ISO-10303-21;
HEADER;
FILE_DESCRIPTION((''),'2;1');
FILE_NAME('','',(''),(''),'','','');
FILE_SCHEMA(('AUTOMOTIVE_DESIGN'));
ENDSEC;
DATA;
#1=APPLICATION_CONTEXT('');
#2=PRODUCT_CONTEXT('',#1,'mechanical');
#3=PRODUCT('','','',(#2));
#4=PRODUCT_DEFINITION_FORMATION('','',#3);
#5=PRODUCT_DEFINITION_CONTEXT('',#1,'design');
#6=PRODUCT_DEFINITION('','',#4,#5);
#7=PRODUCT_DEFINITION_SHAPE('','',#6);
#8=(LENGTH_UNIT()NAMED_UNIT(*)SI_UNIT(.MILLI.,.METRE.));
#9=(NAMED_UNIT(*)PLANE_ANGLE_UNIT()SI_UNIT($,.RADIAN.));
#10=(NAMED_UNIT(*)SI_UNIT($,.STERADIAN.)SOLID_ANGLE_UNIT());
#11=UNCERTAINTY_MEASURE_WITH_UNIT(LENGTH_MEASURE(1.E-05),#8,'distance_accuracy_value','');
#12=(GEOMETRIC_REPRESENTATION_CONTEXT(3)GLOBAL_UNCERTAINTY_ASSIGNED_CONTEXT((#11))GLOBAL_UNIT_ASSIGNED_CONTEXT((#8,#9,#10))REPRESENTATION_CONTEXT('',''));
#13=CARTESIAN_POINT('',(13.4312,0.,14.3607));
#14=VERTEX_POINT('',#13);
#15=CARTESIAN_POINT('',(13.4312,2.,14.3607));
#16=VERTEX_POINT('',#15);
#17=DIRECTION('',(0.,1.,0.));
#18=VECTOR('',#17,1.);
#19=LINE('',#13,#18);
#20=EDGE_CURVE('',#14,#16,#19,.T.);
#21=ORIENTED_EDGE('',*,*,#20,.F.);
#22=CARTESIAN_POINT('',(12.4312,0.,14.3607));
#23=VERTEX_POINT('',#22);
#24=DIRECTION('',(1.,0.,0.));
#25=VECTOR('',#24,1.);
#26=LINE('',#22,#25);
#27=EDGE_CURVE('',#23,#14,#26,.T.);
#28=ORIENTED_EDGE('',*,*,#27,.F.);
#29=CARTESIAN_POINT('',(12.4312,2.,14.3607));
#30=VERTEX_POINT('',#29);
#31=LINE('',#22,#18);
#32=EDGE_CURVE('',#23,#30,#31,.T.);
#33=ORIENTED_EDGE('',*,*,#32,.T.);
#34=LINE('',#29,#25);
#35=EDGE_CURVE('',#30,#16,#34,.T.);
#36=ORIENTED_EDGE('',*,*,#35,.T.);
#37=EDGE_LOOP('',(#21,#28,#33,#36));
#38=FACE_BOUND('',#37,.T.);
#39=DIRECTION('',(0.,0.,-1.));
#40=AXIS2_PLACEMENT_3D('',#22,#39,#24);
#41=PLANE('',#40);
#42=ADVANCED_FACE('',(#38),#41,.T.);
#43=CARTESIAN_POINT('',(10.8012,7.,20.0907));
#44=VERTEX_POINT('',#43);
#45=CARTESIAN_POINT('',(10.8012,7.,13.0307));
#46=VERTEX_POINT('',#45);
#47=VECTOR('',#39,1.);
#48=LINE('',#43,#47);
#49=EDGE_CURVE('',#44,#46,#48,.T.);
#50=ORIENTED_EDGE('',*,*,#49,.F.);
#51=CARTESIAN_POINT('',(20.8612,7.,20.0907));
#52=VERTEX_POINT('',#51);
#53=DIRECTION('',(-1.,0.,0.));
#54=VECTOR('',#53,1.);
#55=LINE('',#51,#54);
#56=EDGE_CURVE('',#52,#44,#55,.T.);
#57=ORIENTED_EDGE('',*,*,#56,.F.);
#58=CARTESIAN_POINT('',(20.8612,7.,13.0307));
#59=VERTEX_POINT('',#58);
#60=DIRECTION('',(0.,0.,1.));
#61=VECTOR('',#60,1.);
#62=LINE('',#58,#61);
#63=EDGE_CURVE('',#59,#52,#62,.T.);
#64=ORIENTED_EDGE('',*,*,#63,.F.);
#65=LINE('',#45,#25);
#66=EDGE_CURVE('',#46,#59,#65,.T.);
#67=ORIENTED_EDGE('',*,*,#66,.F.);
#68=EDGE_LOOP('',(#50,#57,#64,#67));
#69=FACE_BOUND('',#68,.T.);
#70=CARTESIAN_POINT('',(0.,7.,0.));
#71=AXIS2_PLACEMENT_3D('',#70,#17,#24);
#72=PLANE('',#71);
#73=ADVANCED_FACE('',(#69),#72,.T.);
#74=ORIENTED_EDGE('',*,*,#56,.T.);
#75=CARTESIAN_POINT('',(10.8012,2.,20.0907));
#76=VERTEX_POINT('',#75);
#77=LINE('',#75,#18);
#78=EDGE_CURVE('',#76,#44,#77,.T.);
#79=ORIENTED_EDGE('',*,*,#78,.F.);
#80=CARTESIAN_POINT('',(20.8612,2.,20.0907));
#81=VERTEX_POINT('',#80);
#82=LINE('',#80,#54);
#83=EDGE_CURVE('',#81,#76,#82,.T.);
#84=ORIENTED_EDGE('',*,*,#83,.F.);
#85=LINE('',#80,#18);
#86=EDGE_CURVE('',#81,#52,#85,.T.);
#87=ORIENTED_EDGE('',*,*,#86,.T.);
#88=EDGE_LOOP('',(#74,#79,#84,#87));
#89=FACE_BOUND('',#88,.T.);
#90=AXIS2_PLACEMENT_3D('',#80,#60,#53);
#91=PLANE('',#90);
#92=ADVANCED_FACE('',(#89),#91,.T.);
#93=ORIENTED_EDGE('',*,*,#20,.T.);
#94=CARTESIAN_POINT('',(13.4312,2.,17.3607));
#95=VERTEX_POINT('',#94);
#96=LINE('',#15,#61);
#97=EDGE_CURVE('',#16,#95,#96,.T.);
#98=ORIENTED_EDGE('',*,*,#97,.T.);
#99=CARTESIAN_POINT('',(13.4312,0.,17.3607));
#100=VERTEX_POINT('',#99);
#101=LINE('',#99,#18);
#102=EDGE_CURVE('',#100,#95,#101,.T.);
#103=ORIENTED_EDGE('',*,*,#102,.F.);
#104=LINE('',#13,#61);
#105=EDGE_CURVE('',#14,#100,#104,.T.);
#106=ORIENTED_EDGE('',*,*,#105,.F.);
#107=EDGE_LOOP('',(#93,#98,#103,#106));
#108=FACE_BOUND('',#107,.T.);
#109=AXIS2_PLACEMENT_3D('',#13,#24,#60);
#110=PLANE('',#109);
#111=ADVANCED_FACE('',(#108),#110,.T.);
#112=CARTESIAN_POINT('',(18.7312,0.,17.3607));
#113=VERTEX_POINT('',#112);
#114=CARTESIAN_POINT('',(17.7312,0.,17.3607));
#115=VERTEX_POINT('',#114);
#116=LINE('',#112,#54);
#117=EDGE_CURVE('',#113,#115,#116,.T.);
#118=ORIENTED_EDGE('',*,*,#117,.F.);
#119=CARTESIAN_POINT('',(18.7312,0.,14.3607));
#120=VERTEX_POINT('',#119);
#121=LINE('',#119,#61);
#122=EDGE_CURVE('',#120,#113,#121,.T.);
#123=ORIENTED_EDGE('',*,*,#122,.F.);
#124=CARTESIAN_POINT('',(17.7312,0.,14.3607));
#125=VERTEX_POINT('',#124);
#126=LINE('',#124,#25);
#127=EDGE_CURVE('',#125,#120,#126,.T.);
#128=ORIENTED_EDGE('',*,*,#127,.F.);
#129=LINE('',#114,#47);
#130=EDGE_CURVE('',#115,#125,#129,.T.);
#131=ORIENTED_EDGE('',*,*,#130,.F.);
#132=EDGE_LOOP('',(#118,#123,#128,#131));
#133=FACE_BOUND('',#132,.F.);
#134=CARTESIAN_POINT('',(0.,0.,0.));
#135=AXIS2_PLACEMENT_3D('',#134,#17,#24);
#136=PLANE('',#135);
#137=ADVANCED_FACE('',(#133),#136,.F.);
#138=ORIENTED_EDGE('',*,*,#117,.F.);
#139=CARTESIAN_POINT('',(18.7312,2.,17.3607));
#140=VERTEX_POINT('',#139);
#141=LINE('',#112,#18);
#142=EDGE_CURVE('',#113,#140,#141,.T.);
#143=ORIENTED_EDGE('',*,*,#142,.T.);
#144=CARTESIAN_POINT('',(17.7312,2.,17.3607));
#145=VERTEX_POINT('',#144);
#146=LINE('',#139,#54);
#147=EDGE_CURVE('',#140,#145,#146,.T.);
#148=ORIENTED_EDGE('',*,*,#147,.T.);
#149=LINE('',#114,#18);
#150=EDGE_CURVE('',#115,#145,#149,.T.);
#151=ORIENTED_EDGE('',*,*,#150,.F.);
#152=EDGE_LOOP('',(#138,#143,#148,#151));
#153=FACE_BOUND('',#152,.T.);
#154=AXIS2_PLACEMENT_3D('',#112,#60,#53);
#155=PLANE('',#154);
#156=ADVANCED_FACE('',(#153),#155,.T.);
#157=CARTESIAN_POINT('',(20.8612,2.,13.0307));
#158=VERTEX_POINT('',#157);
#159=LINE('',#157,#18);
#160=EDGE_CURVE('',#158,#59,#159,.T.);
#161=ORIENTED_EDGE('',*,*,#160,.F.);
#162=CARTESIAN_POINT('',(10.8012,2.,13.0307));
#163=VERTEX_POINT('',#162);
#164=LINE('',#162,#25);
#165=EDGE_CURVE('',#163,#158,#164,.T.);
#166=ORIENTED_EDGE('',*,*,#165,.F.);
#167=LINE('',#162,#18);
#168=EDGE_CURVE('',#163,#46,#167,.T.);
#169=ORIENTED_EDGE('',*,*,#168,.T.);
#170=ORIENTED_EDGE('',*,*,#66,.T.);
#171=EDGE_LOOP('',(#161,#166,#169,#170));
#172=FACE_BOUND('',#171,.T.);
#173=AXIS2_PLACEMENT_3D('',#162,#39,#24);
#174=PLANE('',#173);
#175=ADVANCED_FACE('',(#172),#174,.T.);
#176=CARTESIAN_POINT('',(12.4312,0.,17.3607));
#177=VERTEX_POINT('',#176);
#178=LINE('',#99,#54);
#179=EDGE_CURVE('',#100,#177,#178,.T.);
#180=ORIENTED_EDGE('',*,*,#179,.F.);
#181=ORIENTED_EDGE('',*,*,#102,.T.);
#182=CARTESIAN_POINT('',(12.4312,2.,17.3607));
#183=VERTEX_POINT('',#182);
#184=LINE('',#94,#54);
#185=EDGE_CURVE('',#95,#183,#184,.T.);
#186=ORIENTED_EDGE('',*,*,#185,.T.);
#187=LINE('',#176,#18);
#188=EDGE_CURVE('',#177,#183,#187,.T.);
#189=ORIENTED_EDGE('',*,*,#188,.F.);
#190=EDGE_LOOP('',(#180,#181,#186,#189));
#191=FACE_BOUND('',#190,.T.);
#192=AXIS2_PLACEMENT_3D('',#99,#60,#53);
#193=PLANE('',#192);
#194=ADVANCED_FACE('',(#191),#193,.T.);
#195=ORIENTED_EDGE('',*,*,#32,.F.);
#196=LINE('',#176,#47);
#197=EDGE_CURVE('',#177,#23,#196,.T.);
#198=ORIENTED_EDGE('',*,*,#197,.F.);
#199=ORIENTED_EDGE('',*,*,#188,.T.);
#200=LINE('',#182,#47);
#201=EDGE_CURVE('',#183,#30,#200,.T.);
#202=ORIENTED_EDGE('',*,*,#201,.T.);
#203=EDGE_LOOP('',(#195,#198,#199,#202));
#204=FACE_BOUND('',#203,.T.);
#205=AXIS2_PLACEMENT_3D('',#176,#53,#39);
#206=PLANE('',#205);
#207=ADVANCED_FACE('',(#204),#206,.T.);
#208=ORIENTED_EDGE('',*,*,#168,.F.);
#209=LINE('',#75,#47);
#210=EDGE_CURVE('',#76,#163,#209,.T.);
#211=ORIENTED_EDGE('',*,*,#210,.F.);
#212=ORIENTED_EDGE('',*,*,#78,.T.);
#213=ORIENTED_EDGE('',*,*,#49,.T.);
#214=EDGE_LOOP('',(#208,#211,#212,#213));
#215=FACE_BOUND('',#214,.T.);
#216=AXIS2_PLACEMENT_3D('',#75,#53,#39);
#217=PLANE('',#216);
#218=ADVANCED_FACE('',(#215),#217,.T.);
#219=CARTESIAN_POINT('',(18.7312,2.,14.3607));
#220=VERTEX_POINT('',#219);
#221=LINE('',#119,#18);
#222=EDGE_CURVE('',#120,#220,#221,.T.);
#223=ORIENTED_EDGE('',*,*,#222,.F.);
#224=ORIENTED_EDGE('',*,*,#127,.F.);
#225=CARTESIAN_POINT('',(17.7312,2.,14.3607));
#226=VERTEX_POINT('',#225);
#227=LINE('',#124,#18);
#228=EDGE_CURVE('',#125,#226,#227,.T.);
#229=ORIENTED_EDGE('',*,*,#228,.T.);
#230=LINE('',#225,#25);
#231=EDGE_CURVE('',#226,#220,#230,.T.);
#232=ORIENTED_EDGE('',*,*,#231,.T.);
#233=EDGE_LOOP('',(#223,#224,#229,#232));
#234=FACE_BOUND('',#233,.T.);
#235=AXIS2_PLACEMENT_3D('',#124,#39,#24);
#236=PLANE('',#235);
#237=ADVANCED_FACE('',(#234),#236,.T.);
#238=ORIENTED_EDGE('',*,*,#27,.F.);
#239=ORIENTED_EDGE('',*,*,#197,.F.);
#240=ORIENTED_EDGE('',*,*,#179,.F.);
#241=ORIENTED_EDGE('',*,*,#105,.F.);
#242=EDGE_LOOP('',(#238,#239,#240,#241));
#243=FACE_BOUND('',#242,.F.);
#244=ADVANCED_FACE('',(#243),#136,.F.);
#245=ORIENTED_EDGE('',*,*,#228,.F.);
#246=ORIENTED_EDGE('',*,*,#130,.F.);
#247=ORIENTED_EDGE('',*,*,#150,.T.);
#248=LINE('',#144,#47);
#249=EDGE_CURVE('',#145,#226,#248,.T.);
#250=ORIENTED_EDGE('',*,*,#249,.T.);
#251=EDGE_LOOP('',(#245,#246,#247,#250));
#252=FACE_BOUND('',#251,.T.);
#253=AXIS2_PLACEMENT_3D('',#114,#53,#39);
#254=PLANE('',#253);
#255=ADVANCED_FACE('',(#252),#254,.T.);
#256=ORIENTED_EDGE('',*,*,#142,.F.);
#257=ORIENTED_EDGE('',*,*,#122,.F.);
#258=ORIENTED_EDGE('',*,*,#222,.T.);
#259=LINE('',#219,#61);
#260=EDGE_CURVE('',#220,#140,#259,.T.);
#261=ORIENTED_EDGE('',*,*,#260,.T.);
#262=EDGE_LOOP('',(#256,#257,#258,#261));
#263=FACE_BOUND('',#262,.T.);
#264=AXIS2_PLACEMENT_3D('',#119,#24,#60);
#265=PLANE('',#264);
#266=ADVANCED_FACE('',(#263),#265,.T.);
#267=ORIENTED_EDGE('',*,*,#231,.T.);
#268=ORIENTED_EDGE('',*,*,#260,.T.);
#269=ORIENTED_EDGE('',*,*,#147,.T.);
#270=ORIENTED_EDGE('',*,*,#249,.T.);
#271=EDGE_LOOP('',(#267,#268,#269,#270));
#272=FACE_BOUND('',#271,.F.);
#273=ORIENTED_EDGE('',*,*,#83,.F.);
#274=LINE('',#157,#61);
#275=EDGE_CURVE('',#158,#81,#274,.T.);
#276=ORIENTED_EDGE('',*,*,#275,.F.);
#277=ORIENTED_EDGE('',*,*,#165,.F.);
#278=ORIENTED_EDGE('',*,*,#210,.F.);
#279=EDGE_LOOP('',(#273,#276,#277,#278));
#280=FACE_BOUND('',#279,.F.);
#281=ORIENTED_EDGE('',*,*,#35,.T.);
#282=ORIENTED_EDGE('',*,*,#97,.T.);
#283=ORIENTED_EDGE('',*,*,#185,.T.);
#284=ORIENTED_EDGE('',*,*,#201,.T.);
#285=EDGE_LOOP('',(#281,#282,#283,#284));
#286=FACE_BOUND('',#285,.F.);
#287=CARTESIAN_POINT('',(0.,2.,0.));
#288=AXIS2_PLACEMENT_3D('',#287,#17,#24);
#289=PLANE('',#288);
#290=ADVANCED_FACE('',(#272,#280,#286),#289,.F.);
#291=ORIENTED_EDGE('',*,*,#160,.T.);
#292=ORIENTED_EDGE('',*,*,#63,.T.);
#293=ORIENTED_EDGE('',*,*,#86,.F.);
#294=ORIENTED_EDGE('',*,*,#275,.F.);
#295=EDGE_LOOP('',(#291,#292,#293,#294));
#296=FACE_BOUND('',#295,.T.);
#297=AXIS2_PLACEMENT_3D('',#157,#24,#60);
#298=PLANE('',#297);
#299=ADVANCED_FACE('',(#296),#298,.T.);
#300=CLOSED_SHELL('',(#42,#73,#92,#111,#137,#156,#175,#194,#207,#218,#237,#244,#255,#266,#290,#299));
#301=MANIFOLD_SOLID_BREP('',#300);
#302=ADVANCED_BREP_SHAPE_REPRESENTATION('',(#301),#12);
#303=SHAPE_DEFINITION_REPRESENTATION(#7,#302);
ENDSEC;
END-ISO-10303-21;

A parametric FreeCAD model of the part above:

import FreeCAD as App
import Part
import Sketcher

V = App.Vector

doc = App.newDocument("Part")
body = doc.addObject("PartDesign::Body", "Body")
body.AllowCompound = True

# Sketch on XZ plane
sketch1 = body.newObject("Sketcher::SketchObject", "Sketch")
sketch1.AttachmentSupport = (doc.getObject("XZ_Plane"), [""])
sketch1.MapMode = "FlatFace"
sketch1.addGeometry(Part.LineSegment(V(13.4, 14.4, 0), V(12.4, 14.4, 0)), False)
sketch1.addGeometry(Part.LineSegment(V(12.4, 14.4, 0), V(12.4, 17.4, 0)), False)
sketch1.addGeometry(Part.LineSegment(V(12.4, 17.4, 0), V(13.4, 17.4, 0)), False)
sketch1.addGeometry(Part.LineSegment(V(13.4, 17.4, 0), V(13.4, 14.4, 0)), False)
sketch1.addGeometry(Part.LineSegment(V(18.7, 14.4, 0), V(17.7, 14.4, 0)), False)
sketch1.addGeometry(Part.LineSegment(V(17.7, 14.4, 0), V(17.7, 17.4, 0)), False)
sketch1.addGeometry(Part.LineSegment(V(17.7, 17.4, 0), V(18.7, 17.4, 0)), False)
sketch1.addGeometry(Part.LineSegment(V(18.7, 17.4, 0), V(18.7, 14.4, 0)), False)
sketch1.addConstraint(Sketcher.Constraint("Coincident", 0, 2, 1, 1))
sketch1.addConstraint(Sketcher.Constraint("Coincident", 1, 2, 2, 1))
sketch1.addConstraint(Sketcher.Constraint("Coincident", 2, 2, 3, 1))
sketch1.addConstraint(Sketcher.Constraint("Coincident", 3, 2, 0, 1))
sketch1.addConstraint(Sketcher.Constraint("Coincident", 4, 2, 5, 1))
sketch1.addConstraint(Sketcher.Constraint("Coincident", 5, 2, 6, 1))
sketch1.addConstraint(Sketcher.Constraint("Coincident", 6, 2, 7, 1))
sketch1.addConstraint(Sketcher.Constraint("Coincident", 7, 2, 4, 1))
sketch1.addConstraint(Sketcher.Constraint("Horizontal", 0))
sketch1.addConstraint(Sketcher.Constraint("Vertical", 1))
sketch1.addConstraint(Sketcher.Constraint("Horizontal", 2))
sketch1.addConstraint(Sketcher.Constraint("Vertical", 3))
sketch1.addConstraint(Sketcher.Constraint("Horizontal", 4))
sketch1.addConstraint(Sketcher.Constraint("Vertical", 5))
sketch1.addConstraint(Sketcher.Constraint("Horizontal", 6))
sketch1.addConstraint(Sketcher.Constraint("Vertical", 7))
sketch1.addConstraint(Sketcher.Constraint("Horizontal", 3, 2, 4, 2))
sketch1.addConstraint(Sketcher.Constraint("Horizontal", 2, 2, 5, 2))
sketch1.addConstraint(Sketcher.Constraint("Equal", 2, 4))
sketch1.addConstraint(Sketcher.Constraint("DistanceX", 0, 2, 0, 1, 1.0))
sketch1.addConstraint(Sketcher.Constraint("DistanceY", 1, 1, 1, 2, 3.0))
sketch1.addConstraint(Sketcher.Constraint("DistanceX", 0, 2, 4, 2, 5.3))
sketch1.addConstraint(Sketcher.Constraint("DistanceX", -1, 1, 0, 2, 12.4312))
sketch1.addConstraint(Sketcher.Constraint("DistanceY", -1, 1, 0, 2, 14.3607))
pad1 = body.newObject("PartDesign::Pad", "Pad")
pad1.Profile = sketch1
pad1.Length = 2
pad1.Reversed = True

# Sketch on XZ plane
sketch2 = body.newObject("Sketcher::SketchObject", "Sketch001")
sketch2.AttachmentSupport = (doc.getObject("XZ_Plane"), [""])
sketch2.MapMode = "FlatFace"
sketch2.AttachmentOffset = App.Placement(V(0, 0, -2), App.Rotation())
sketch2.addGeometry(Part.LineSegment(V(21, 13, 0), V(11, 13, 0)), False)
sketch2.addGeometry(Part.LineSegment(V(11, 13, 0), V(11, 20, 0)), False)
sketch2.addGeometry(Part.LineSegment(V(11, 20, 0), V(21, 20, 0)), False)
sketch2.addGeometry(Part.LineSegment(V(21, 20, 0), V(21, 13, 0)), False)
sketch2.addConstraint(Sketcher.Constraint("Coincident", 0, 2, 1, 1))
sketch2.addConstraint(Sketcher.Constraint("Coincident", 1, 2, 2, 1))
sketch2.addConstraint(Sketcher.Constraint("Coincident", 2, 2, 3, 1))
sketch2.addConstraint(Sketcher.Constraint("Coincident", 3, 2, 0, 1))
sketch2.addConstraint(Sketcher.Constraint("Horizontal", 0))
sketch2.addConstraint(Sketcher.Constraint("Vertical", 1))
sketch2.addConstraint(Sketcher.Constraint("Horizontal", 2))
sketch2.addConstraint(Sketcher.Constraint("Vertical", 3))
sketch2.addConstraint(Sketcher.Constraint("DistanceX", 0, 2, 0, 1, 10.06))
sketch2.addConstraint(Sketcher.Constraint("DistanceY", 1, 1, 1, 2, 7.06))
sketch2.addConstraint(Sketcher.Constraint("DistanceX", -1, 1, 0, 2, 10.8012))
sketch2.addConstraint(Sketcher.Constraint("DistanceY", -1, 1, 0, 2, 13.0307))
pad2 = body.newObject("PartDesign::Pad", "Pad001")
pad2.Profile = sketch2
pad2.Length = 5
pad2.Reversed = True

doc.recompute()
